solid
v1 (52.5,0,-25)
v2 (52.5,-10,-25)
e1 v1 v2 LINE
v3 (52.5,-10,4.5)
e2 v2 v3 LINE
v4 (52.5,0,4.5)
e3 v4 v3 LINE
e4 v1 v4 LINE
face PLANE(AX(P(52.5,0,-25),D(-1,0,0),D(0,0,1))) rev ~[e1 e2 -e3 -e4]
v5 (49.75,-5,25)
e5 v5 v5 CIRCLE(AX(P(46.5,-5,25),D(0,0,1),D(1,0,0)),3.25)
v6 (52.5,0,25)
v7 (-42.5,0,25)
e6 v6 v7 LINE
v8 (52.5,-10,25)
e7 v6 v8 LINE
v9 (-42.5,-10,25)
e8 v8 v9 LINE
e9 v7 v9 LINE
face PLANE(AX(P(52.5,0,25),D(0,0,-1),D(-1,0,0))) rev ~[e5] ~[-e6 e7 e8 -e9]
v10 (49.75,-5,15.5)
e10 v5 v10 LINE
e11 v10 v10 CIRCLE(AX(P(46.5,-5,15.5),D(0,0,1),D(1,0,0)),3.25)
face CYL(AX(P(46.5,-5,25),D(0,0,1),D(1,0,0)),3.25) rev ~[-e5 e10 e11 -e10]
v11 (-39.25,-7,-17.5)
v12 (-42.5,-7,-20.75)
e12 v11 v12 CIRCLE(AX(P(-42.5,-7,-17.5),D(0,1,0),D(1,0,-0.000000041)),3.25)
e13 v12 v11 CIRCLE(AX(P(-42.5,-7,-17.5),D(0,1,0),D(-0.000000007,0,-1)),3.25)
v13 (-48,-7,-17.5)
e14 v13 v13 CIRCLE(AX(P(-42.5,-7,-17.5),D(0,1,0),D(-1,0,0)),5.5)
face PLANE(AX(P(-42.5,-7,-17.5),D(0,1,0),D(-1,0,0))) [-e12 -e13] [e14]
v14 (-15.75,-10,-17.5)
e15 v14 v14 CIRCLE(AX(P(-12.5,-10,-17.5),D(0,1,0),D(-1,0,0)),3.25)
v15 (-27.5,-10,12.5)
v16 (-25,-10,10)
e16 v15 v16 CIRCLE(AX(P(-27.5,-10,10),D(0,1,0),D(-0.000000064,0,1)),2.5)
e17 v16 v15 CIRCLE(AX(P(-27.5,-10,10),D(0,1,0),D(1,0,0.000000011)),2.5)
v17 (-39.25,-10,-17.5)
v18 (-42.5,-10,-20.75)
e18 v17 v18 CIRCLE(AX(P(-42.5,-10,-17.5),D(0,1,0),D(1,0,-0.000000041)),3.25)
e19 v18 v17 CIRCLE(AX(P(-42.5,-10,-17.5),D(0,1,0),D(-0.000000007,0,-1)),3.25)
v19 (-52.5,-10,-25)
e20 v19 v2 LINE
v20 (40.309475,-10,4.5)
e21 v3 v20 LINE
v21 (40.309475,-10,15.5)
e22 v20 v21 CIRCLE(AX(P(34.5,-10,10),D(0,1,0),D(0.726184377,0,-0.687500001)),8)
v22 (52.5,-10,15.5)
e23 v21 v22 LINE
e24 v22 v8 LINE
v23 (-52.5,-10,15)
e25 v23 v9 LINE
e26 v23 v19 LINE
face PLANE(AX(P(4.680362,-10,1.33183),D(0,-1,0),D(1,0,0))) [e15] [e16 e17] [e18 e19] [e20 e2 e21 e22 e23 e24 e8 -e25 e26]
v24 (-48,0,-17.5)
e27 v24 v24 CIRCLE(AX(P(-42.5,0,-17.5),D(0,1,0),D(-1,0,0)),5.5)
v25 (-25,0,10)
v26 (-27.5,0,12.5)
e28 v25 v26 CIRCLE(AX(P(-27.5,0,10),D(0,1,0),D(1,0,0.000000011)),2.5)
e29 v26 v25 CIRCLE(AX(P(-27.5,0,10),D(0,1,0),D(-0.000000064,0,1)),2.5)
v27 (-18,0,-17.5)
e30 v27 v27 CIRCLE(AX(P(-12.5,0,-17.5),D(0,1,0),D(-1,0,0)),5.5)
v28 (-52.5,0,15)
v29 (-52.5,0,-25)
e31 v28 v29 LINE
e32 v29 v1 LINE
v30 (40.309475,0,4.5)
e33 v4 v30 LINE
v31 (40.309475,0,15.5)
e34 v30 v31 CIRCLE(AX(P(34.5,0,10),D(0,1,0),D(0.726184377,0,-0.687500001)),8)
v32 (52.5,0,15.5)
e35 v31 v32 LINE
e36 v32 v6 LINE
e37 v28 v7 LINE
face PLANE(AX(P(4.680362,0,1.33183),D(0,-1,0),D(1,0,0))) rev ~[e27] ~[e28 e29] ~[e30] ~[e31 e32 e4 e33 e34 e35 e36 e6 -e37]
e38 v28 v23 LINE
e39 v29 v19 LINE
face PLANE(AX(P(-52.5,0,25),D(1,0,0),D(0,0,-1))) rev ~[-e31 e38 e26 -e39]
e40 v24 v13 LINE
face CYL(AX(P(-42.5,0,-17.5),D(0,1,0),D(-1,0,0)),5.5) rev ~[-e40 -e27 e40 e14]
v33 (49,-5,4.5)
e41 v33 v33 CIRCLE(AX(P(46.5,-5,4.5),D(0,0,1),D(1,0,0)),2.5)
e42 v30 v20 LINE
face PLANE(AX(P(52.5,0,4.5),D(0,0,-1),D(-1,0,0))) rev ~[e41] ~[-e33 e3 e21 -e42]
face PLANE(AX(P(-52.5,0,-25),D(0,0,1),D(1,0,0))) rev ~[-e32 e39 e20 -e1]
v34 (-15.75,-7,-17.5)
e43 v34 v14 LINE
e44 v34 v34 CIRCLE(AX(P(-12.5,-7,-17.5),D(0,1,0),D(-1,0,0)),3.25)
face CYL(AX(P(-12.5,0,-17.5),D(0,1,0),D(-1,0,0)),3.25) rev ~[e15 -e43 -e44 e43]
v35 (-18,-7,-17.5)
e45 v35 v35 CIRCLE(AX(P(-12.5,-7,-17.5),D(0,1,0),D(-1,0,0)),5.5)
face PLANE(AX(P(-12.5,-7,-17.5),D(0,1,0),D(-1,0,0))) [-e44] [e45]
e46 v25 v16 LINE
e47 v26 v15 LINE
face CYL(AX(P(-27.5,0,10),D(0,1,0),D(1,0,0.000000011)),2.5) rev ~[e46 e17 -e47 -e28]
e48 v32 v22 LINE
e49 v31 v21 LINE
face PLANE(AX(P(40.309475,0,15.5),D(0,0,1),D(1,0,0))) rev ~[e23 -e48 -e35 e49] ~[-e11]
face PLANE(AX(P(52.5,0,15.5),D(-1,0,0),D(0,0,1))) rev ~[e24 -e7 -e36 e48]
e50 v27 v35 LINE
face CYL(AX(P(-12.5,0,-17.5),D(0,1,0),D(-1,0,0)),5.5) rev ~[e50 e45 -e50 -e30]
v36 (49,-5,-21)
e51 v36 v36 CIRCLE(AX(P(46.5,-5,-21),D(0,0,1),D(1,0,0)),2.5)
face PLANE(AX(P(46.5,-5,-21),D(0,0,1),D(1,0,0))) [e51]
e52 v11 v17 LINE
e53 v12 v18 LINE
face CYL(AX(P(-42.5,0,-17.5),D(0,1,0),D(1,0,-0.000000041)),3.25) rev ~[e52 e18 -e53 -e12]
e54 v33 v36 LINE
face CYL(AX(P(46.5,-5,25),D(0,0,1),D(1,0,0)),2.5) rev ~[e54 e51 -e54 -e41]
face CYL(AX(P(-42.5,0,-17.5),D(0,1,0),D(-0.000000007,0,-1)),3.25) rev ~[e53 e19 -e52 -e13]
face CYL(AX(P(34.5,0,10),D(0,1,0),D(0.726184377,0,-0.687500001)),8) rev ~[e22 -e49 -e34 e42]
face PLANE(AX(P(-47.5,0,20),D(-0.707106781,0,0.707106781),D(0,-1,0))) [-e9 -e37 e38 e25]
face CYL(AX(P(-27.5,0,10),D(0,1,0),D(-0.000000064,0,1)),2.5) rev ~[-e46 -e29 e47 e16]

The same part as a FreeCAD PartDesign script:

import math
import FreeCAD as App
import Part
import Sketcher
from FreeCAD import Vector


def edges_at(feature, points):
    """Names of the edges that pass closest to the given points."""
    edges = feature.Shape.Edges
    near = lambda p: min(range(len(edges)), key=lambda i: edges[i].distToShape(Part.Vertex(*p))[0])
    return sorted({f"Edge{near(p) + 1}" for p in points})

doc = App.newDocument("Part")
body = doc.addObject("PartDesign::Body", "Body")

# Sketch on XZ plane
sketch1 = doc.addObject("Sketcher::SketchObject", "Sketch")
body.addObject(sketch1)
sketch1.AttachmentSupport = (doc.XZ_Plane, [""])
sketch1.MapMode = "FlatFace"
sketch1.addGeometry(Part.LineSegment(Vector(-52.5, 25, 0), Vector(-52.5, -25, 0)), False)
sketch1.addGeometry(Part.LineSegment(Vector(-52.5, -25, 0), Vector(52.5, -25, 0)), False)
sketch1.addGeometry(Part.LineSegment(Vector(52.5, -25, 0), Vector(52.5, 4.5, 0)), False)
sketch1.addGeometry(Part.LineSegment(Vector(52.5, 4.5, 0), Vector(40.309475, 4.5, 0)), False)
sketch1.addGeometry(Part.ArcOfCircle(Part.Circle(Vector(34.5, 10, 0), Vector(0, 0, 1), 8), math.radians(43.432537), math.radians(316.567463)), False)
sketch1.addGeometry(Part.LineSegment(Vector(40.309475, 15.5, 0), Vector(52.5, 15.5, 0)), False)
sketch1.addGeometry(Part.LineSegment(Vector(52.5, 15.5, 0), Vector(52.5, 25, 0)), False)
sketch1.addGeometry(Part.LineSegment(Vector(52.5, 25, 0), Vector(-52.5, 25, 0)), False)
sketch1.addGeometry(Part.ArcOfCircle(Part.Circle(Vector(-42.5, -17.5, 0), Vector(0, 0, 1), 3.25), math.radians(0), math.radians(270)), False)
sketch1.addGeometry(Part.ArcOfCircle(Part.Circle(Vector(-42.5, -17.5, 0), Vector(0, 0, 1), 3.25), math.radians(-89.999998), math.radians(-0.000002)), False)
sketch1.addGeometry(Part.Circle(Vector(-12.5, -17.5, 0), Vector(0, 0, 1), 3.25), False)
sketch1.addGeometry(Part.ArcOfCircle(Part.Circle(Vector(-27.5, 10, 0), Vector(0, 0, 1), 2.5), math.radians(-0.000004), math.radians(90.000004)), False)
sketch1.addGeometry(Part.ArcOfCircle(Part.Circle(Vector(-27.5, 10, 0), Vector(0, 0, 1), 2.5), math.radians(89.999999), math.radians(360.000001)), False)
sketch1.addConstraint(Sketcher.Constraint("Coincident", 0, 2, 1, 1))
sketch1.addConstraint(Sketcher.Constraint("Coincident", 1, 2, 2, 1))
sketch1.addConstraint(Sketcher.Constraint("Coincident", 2, 2, 3, 1))
sketch1.addConstraint(Sketcher.Constraint("Coincident", 3, 2, 4, 2))
sketch1.addConstraint(Sketcher.Constraint("Coincident", 4, 1, 5, 1))
sketch1.addConstraint(Sketcher.Constraint("Coincident", 5, 2, 6, 1))
sketch1.addConstraint(Sketcher.Constraint("Coincident", 6, 2, 7, 1))
sketch1.addConstraint(Sketcher.Constraint("Coincident", 7, 2, 0, 1))
sketch1.addConstraint(Sketcher.Constraint("Tangent", 8, 1, 9, 2))
sketch1.addConstraint(Sketcher.Constraint("Coincident", 9, 1, 8, 2))
sketch1.addConstraint(Sketcher.Constraint("Tangent", 11, 1, 12, 2))
sketch1.addConstraint(Sketcher.Constraint("Coincident", 12, 1, 11, 2))
sketch1.addConstraint(Sketcher.Constraint("Vertical", 0))
sketch1.addConstraint(Sketcher.Constraint("Horizontal", 1))
sketch1.addConstraint(Sketcher.Constraint("Vertical", 2))
sketch1.addConstraint(Sketcher.Constraint("Horizontal", 3))
sketch1.addConstraint(Sketcher.Constraint("Horizontal", 5))
sketch1.addConstraint(Sketcher.Constraint("Vertical", 6))
sketch1.addConstraint(Sketcher.Constraint("Horizontal", 7))
sketch1.addConstraint(Sketcher.Constraint("Equal", 9, 10))
sketch1.addConstraint(Sketcher.Constraint("Symmetric", 0, 2, 6, 2, -1, 1))
sketch1.addConstraint(Sketcher.Constraint("Horizontal", 9, 3, 10, 3))
sketch1.addConstraint(Sketcher.Constraint("Horizontal", 4, 3, 11, 3))
sketch1.addConstraint(Sketcher.Constraint("Horizontal", 10, 3, 8, 1))
sketch1.addConstraint(Sketcher.Constraint("Horizontal", 12, 3, 11, 1))
sketch1.addConstraint(Sketcher.Constraint("Vertical", 3, 2, 4, 1))
sketch1.addConstraint(Sketcher.Constraint("Vertical", 2, 2, 5, 2))
sketch1.addConstraint(Sketcher.Constraint("Vertical", 8, 3, 9, 1))
sketch1.addConstraint(Sketcher.Constraint("Vertical", 11, 3, 12, 1))
sketch1.addConstraint(Sketcher.Constraint("Radius", 4, 8.0))
sketch1.addConstraint(Sketcher.Constraint("Diameter", 10, 6.5))
sketch1.addConstraint(Sketcher.Constraint("Radius", 11, 2.5))
sketch1.addConstraint(Sketcher.Constraint("DistanceX", 1, 1, 1, 2, 105.0))
sketch1.addConstraint(Sketcher.Constraint("DistanceY", 0, 2, 0, 1, 50.0))
sketch1.addConstraint(Sketcher.Constraint("DistanceY", 2, 1, 2, 2, 29.5))
sketch1.addConstraint(Sketcher.Constraint("DistanceY", 6, 1, 6, 2, 9.5))
sketch1.addConstraint(Sketcher.Constraint("DistanceX", 11, 1, -1, 1, 25.0))
sketch1.addConstraint(Sketcher.Constraint("DistanceX", 8, 3, 4, 3, 77.0))
sketch1.addConstraint(Sketcher.Constraint("DistanceX", 8, 3, 10, 3, 30.0))
sketch1.addConstraint(Sketcher.Constraint("DistanceX", 11, 3, 10, 3, 15.0))
sketch1.addConstraint(Sketcher.Constraint("DistanceY", 10, 3, 2, 2, 22.0))
pad1 = doc.addObject("PartDesign::Pad", "Pad")
body.addObject(pad1)
pad1.Profile = sketch1
pad1.Length = 10
doc.recompute()

chamfer = doc.addObject("PartDesign::Chamfer", "Chamfer")
body.addObject(chamfer)
chamfer.Base = (pad1, edges_at(pad1, [(-52.5, -5, 25)]))
chamfer.Size = 10

# Sketch on XZ plane
sketch2 = doc.addObject("Sketcher::SketchObject", "Sketch001")
body.addObject(sketch2)
sketch2.AttachmentSupport = (doc.XZ_Plane, [""])
sketch2.MapMode = "FlatFace"
sketch2.addGeometry(Part.Circle(Vector(-12.5, -17.5, 0), Vector(0, 0, 1), 5.5), False)
sketch2.addGeometry(Part.Circle(Vector(-42.5, -17.5, 0), Vector(0, 0, 1), 5.5), False)
sketch2.addConstraint(Sketcher.Constraint("Equal", 0, 1))
sketch2.addConstraint(Sketcher.Constraint("Horizontal", 0, 3, 1, 3))
sketch2.addConstraint(Sketcher.Constraint("Diameter", 0, 11.0))
sketch2.addConstraint(Sketcher.Constraint("DistanceX", 1, 3, 0, 3, 30.0))
sketch2.addConstraint(Sketcher.Constraint("DistanceX", 0, 3, -1, 1, 12.5))
sketch2.addConstraint(Sketcher.Constraint("DistanceY", 0, 3, -1, 1, 17.5))
pocket1 = doc.addObject("PartDesign::Pocket", "Pocket")
body.addObject(pocket1)
pocket1.Profile = sketch2
pocket1.Length = 7
pocket1.Reversed = True

# Sketch on XY plane
sketch3 = doc.addObject("Sketcher::SketchObject", "Sketch002")
body.addObject(sketch3)
sketch3.AttachmentSupport = (doc.XY_Plane, [""])
sketch3.MapMode = "FlatFace"
sketch3.AttachmentOffset = App.Placement(Vector(0, 0, 25), App.Rotation())
sketch3.addGeometry(Part.Circle(Vector(46.5, -5, 0), Vector(0, 0, 1), 3.25), False)
sketch3.addConstraint(Sketcher.Constraint("Diameter", 0, 6.5))
sketch3.addConstraint(Sketcher.Constraint("DistanceY", 0, 3, -1, 1, 5.0))
sketch3.addConstraint(Sketcher.Constraint("DistanceX", -1, 1, 0, 3, 46.5))
pocket2 = doc.addObject("PartDesign::Pocket", "Pocket001")
body.addObject(pocket2)
pocket2.Profile = sketch3
pocket2.Length = 15

# Sketch on XY plane
sketch4 = doc.addObject("Sketcher::SketchObject", "Sketch003")
body.addObject(sketch4)
sketch4.AttachmentSupport = (doc.XY_Plane, [""])
sketch4.MapMode = "FlatFace"
sketch4.AttachmentOffset = App.Placement(Vector(0, 0, 25), App.Rotation())
sketch4.addGeometry(Part.Circle(Vector(46.5, -5, 0), Vector(0, 0, 1), 2.5), False)
sketch4.addConstraint(Sketcher.Constraint("Diameter", 0, 5.0))
sketch4.addConstraint(Sketcher.Constraint("DistanceY", 0, 3, -1, 1, 5.0))
sketch4.addConstraint(Sketcher.Constraint("DistanceX", -1, 1, 0, 3, 46.5))
pocket3 = doc.addObject("PartDesign::Pocket", "Pocket002")
body.addObject(pocket3)
pocket3.Profile = sketch4
pocket3.Length = 46

doc.recompute()
